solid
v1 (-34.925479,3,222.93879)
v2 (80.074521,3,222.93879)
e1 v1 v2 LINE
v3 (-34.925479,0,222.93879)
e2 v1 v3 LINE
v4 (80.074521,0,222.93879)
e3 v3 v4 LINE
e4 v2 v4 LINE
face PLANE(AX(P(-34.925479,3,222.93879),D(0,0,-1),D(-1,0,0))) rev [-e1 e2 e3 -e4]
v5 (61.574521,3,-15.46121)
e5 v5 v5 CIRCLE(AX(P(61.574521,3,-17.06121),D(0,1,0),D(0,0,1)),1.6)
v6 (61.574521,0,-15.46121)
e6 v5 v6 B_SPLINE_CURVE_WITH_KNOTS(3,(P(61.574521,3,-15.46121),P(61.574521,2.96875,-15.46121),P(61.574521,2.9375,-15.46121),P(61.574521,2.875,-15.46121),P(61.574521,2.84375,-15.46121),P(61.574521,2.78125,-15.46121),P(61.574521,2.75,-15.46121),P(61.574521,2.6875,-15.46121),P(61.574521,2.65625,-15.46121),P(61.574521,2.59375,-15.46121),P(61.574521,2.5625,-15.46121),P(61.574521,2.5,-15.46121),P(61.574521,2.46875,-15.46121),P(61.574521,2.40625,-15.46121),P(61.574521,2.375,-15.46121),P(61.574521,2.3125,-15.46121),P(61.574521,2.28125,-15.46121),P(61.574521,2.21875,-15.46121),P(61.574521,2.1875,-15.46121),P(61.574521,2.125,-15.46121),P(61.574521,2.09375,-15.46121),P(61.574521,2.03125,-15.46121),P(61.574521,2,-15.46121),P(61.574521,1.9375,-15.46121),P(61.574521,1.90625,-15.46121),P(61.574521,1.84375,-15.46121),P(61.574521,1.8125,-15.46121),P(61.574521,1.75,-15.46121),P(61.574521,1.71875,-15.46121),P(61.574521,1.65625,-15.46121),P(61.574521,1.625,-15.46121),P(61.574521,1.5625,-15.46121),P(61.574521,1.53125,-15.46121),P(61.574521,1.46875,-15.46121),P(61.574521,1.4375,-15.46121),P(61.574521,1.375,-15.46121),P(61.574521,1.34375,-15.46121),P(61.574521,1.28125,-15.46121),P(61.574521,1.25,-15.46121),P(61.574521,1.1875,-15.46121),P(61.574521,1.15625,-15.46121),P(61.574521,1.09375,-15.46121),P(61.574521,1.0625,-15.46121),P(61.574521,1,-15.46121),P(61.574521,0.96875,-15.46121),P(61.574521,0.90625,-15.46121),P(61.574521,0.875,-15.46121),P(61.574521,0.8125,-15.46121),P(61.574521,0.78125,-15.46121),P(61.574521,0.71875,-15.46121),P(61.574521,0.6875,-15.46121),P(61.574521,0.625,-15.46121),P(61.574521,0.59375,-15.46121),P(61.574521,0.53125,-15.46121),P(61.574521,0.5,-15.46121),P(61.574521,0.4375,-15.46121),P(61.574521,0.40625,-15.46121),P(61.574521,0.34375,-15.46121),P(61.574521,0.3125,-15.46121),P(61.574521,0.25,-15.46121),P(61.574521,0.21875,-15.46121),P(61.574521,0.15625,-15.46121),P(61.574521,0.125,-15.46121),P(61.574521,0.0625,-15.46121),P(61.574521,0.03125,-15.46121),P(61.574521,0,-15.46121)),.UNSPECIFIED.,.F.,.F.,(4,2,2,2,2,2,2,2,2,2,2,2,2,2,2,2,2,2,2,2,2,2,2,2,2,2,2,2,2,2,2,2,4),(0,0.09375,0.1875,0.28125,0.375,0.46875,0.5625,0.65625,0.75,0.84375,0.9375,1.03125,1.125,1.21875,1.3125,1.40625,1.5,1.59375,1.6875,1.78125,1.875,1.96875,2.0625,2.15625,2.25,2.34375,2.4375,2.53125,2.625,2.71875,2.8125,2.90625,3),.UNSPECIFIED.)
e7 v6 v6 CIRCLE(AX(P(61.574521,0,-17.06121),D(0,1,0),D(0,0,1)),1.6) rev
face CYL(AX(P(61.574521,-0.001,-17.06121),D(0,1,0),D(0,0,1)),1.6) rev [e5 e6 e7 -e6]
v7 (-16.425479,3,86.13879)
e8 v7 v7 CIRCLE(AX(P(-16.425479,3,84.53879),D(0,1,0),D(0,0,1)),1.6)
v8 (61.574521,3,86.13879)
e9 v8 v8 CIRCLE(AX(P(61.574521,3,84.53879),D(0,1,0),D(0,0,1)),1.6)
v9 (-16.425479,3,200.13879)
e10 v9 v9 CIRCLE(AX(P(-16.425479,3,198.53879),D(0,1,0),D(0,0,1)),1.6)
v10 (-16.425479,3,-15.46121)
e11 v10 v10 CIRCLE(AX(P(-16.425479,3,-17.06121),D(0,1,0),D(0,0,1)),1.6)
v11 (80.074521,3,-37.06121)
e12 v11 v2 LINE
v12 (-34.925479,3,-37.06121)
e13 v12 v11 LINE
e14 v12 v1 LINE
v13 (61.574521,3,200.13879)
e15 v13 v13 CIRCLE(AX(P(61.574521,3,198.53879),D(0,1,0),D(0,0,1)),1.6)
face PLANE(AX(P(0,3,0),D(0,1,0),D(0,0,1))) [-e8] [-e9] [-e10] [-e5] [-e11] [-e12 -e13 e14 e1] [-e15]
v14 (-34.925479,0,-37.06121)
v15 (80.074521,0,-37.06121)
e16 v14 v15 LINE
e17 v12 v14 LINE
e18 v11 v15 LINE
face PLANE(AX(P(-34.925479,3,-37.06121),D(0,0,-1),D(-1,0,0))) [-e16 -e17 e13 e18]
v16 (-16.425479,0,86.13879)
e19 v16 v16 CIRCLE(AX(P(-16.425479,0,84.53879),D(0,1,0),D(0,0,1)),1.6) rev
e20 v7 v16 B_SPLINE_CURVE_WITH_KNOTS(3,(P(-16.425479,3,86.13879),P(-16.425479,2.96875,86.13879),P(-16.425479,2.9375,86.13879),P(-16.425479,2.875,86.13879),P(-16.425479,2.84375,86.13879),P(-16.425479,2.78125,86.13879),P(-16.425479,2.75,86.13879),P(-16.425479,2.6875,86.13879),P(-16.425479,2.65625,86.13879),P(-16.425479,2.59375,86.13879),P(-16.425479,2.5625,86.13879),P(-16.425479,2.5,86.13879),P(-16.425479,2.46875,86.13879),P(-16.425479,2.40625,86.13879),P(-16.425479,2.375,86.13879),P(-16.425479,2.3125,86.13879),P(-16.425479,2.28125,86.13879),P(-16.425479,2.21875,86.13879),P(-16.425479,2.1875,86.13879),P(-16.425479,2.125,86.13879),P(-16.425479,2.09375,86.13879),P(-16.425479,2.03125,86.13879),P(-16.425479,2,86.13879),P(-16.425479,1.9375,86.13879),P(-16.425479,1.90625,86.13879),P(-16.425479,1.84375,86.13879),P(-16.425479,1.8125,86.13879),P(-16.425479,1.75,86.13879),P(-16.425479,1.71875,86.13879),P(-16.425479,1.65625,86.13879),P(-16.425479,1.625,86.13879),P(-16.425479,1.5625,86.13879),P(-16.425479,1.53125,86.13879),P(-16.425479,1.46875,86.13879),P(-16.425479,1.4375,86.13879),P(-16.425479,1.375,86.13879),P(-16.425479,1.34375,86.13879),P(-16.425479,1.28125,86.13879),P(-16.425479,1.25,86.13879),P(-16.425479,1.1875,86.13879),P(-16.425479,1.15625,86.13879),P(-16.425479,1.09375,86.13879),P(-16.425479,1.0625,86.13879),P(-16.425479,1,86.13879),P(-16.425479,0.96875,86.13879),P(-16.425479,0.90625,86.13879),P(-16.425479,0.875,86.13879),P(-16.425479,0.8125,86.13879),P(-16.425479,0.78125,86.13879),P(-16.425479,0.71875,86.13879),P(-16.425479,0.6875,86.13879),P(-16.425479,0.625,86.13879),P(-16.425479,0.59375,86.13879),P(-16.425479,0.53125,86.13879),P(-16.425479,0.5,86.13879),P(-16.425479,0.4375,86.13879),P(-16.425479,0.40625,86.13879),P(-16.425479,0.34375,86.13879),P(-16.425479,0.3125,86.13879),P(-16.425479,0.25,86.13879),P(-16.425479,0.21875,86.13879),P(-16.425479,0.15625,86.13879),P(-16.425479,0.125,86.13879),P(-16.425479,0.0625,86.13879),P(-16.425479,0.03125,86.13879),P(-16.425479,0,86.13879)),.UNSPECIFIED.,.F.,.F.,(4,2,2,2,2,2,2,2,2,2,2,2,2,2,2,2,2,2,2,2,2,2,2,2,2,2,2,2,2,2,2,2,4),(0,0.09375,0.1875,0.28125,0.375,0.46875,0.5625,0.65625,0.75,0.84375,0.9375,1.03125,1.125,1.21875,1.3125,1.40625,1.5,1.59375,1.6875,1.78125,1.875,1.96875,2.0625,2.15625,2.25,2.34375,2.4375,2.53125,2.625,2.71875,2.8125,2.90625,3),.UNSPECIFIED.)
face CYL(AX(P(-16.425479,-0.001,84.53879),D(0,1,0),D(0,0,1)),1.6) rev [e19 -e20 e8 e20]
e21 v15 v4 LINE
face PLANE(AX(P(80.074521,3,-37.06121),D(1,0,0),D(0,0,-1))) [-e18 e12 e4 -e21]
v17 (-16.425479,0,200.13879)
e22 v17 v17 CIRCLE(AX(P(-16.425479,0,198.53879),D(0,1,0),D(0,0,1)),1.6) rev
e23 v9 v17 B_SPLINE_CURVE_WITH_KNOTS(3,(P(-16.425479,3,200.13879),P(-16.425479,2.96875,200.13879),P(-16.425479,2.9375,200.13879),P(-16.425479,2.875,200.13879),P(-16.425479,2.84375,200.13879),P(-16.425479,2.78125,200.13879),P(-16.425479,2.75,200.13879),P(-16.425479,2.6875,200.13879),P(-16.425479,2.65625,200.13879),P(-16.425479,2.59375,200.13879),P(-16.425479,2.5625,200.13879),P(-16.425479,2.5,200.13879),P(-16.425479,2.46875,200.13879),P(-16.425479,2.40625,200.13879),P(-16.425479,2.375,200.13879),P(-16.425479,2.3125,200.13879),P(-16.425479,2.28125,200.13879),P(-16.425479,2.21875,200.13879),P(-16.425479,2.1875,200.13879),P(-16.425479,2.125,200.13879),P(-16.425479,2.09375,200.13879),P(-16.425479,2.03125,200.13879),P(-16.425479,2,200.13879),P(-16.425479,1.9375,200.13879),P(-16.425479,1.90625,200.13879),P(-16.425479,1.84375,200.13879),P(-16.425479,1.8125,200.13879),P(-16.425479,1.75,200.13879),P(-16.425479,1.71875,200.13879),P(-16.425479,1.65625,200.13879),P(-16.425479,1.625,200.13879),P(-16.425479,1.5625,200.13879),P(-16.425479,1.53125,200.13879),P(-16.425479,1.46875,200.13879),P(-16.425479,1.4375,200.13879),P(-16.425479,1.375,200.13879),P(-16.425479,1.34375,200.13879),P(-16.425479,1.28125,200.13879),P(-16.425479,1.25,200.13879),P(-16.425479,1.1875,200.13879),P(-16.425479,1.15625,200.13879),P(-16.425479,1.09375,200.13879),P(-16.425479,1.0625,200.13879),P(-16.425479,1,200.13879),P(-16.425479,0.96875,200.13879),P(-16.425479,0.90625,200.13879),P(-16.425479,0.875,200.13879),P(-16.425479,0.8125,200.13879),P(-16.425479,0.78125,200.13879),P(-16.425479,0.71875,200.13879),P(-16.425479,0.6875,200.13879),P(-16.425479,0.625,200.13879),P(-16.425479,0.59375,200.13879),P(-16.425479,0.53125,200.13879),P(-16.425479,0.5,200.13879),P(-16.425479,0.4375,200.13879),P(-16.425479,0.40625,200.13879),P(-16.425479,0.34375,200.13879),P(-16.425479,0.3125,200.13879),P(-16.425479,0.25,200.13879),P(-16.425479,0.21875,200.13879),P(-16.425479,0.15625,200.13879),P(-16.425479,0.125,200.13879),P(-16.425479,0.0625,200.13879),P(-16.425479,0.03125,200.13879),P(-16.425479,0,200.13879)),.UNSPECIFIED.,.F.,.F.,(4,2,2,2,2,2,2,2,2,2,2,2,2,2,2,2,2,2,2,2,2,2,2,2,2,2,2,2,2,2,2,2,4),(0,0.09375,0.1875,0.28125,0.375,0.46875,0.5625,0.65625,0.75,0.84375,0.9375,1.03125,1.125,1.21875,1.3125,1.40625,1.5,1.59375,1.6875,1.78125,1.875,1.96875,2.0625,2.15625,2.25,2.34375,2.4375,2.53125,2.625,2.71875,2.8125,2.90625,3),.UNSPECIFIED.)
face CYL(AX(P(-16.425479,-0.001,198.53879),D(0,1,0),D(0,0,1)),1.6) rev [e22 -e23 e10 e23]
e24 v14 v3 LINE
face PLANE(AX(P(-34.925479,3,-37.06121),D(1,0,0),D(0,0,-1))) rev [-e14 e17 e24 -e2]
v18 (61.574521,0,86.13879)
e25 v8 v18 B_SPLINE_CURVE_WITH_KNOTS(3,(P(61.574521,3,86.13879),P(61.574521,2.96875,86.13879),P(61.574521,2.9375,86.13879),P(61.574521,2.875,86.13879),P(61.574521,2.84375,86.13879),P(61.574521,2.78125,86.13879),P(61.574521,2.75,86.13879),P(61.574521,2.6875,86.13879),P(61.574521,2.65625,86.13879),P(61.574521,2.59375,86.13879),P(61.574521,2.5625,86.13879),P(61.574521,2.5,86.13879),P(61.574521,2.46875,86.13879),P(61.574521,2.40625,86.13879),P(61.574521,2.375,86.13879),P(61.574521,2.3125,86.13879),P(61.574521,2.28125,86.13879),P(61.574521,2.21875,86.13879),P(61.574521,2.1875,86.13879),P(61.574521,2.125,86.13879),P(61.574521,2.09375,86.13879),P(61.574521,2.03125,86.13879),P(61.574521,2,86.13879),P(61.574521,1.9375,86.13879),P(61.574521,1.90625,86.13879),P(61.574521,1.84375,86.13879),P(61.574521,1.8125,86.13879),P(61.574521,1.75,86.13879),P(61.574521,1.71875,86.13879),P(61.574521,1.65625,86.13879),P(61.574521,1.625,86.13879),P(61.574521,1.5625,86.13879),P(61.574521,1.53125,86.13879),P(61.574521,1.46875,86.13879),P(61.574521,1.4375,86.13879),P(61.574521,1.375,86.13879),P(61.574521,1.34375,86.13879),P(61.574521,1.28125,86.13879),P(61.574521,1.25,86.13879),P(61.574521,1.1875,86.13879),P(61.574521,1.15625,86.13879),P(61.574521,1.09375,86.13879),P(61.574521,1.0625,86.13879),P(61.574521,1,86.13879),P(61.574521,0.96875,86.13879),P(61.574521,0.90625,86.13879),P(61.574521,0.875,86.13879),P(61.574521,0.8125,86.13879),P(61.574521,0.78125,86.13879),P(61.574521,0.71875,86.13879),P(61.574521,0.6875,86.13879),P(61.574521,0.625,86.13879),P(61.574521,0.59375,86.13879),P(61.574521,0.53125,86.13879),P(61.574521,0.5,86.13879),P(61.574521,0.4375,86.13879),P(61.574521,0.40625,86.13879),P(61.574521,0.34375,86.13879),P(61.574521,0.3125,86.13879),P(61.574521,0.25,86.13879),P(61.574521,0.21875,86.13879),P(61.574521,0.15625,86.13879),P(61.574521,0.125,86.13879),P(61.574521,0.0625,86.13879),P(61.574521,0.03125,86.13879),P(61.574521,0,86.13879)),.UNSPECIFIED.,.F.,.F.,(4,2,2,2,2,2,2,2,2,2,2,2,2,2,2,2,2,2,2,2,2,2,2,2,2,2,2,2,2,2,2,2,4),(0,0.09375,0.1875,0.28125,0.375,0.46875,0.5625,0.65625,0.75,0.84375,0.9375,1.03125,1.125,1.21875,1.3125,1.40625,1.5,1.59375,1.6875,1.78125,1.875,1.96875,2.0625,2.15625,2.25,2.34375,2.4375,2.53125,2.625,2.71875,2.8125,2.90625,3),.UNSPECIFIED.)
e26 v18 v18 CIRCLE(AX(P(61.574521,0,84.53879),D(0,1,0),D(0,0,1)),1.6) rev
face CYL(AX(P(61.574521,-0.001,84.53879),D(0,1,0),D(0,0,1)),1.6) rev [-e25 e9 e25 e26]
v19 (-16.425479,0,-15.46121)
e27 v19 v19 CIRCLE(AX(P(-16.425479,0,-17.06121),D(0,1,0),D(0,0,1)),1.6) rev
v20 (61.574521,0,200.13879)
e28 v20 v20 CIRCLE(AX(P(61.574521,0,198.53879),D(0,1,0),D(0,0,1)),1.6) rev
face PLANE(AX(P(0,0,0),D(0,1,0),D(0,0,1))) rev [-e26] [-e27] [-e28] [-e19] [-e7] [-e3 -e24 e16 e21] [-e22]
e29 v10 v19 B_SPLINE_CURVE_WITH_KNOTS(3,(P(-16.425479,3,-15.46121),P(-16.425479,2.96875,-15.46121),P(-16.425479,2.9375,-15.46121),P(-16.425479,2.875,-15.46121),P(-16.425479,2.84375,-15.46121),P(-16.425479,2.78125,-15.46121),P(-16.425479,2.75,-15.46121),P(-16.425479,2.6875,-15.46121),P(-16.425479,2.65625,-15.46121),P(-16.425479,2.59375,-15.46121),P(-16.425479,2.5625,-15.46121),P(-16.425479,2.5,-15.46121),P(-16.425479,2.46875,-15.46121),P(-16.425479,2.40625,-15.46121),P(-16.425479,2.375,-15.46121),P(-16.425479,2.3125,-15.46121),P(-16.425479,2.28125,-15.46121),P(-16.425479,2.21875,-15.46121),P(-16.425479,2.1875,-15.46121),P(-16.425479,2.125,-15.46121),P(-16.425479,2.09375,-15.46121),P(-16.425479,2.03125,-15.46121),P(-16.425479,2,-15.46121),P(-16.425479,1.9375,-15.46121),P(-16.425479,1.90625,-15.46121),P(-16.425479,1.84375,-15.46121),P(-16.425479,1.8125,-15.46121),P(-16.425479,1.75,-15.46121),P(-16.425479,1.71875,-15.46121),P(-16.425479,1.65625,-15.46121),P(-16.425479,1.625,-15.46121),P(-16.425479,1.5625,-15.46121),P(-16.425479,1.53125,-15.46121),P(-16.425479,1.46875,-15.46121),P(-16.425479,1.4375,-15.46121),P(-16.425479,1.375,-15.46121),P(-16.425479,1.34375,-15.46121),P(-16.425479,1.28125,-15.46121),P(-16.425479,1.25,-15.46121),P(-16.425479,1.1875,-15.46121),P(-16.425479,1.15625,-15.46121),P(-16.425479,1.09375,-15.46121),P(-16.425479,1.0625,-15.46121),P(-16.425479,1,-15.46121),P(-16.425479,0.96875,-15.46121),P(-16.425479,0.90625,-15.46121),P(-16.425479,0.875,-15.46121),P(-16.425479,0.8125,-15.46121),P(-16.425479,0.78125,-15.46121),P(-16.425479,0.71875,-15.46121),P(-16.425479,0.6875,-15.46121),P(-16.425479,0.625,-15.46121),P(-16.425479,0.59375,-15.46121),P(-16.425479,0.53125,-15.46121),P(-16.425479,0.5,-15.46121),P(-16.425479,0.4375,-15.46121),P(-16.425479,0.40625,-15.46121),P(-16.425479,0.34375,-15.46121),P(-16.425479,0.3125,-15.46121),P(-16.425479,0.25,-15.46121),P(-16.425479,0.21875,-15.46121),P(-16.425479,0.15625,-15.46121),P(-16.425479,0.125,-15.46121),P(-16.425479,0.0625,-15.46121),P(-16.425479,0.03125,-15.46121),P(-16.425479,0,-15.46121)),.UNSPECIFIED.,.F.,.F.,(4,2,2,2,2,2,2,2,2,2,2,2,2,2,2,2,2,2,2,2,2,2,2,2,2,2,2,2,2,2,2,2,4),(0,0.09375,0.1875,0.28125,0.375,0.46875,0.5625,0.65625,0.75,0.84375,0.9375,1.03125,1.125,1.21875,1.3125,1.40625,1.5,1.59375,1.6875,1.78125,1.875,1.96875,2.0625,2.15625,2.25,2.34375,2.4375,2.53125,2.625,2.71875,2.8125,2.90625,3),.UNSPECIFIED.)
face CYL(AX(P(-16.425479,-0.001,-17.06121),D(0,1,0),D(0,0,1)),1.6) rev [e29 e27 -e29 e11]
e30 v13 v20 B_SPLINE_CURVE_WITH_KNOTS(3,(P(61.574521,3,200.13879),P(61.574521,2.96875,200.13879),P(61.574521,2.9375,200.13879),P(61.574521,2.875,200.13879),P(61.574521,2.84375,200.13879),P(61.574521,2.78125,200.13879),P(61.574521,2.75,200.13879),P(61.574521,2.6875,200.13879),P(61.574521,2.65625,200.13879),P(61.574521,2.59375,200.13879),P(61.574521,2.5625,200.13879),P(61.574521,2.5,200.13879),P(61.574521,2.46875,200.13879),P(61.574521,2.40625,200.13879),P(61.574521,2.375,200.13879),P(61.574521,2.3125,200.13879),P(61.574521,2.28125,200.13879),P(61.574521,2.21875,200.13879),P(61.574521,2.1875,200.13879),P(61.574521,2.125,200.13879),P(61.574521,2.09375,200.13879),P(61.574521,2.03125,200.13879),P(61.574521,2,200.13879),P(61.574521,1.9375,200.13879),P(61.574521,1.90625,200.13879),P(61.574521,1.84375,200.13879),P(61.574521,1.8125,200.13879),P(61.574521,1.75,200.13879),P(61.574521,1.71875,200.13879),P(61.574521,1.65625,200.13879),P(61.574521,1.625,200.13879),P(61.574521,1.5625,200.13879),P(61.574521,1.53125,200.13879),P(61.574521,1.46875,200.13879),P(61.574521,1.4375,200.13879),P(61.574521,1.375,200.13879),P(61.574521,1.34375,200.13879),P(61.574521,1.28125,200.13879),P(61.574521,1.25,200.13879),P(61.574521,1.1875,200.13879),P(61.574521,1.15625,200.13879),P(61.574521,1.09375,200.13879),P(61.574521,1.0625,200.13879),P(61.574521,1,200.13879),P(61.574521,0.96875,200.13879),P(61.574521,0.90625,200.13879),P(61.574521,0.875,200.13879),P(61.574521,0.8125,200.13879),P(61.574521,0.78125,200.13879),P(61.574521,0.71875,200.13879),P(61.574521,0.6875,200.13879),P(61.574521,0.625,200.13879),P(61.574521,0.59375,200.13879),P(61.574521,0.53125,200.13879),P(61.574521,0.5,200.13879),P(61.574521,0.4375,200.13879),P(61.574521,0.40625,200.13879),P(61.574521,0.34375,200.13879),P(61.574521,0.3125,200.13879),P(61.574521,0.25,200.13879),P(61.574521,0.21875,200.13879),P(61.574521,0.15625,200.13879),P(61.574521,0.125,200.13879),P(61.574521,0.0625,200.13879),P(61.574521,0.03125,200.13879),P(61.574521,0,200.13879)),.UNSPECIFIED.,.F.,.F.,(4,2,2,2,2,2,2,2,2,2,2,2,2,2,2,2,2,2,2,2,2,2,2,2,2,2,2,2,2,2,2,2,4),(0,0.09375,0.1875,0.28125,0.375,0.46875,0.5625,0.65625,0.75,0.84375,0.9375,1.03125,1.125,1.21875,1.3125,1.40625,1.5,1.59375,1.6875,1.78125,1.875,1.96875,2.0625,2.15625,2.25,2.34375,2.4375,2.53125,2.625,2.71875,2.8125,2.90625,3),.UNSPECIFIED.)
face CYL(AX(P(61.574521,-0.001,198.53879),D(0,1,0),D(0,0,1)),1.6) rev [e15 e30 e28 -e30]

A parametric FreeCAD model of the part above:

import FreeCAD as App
import Part
import Sketcher
Q = App.Units.Quantity

doc = App.newDocument("Part")
body = doc.addObject("PartDesign::Body", "Body")

sketch1 = body.newObject("Sketcher::SketchObject", "Sketch")
sketch1.AttachmentSupport = (doc.getObject("XZ_Plane"), [""])
sketch1.MapMode = "FlatFace"
sketch1.addGeometry([
    Part.LineSegment(App.Vector(-35, -37, 0), App.Vector(-35, 223, 0)),
    Part.LineSegment(App.Vector(-35, 223, 0), App.Vector(80, 223, 0)),
    Part.LineSegment(App.Vector(80, 223, 0), App.Vector(80, -37, 0)),
    Part.LineSegment(App.Vector(80, -37, 0), App.Vector(-35, -37, 0)),
], False)
sketch1.addConstraint([
    Sketcher.Constraint("Coincident", 0, 2, 1, 1),
    Sketcher.Constraint("Coincident", 1, 2, 2, 1),
    Sketcher.Constraint("Coincident", 2, 2, 3, 1),
    Sketcher.Constraint("Coincident", 3, 2, 0, 1),
    Sketcher.Constraint("Vertical", 0),
    Sketcher.Constraint("Horizontal", 1),
    Sketcher.Constraint("Vertical", 2),
    Sketcher.Constraint("Horizontal", 3),
    Sketcher.Constraint("DistanceX", 1, 1, 1, 2, Q("115 mm")),
    Sketcher.Constraint("DistanceY", 0, 1, 0, 2, Q("260 mm")),
    Sketcher.Constraint("DistanceX", 0, 2, -1, 1, Q("34.925479 mm")),
    Sketcher.Constraint("DistanceY", -1, 1, 0, 2, Q("222.93879 mm")),
])
pad1 = body.newObject("PartDesign::Pad", "Pad")
pad1.Profile = sketch1
pad1.Length = 3
pad1.Reversed = True

sketch2 = body.newObject("Sketcher::SketchObject", "Sketch001")
sketch2.AttachmentSupport = (doc.getObject("XZ_Plane"), [""])
sketch2.MapMode = "FlatFace"
sketch2.AttachmentOffset = App.Placement(App.Vector(0, 0, -3), App.Rotation())
sketch2.addGeometry(Part.Circle(App.Vector(-16.4, 198.5, 0), App.Vector(0, 0, 1), 1.6), False)
sketch2.addConstraint([
    Sketcher.Constraint("Diameter", 0, Q("3.2 mm")),
    Sketcher.Constraint("DistanceX", 0, 3, -1, 1, Q("16.425479 mm")),
    Sketcher.Constraint("DistanceY", -1, 1, 0, 3, Q("198.53879 mm")),
])
pocket1 = body.newObject("PartDesign::Pocket", "Pocket")
pocket1.Profile = sketch2
pocket1.Type = "UpToFirst"
pocket1.Reversed = True

sketch3 = body.newObject("Sketcher::SketchObject", "Sketch002")
sketch3.AttachmentSupport = (doc.getObject("XZ_Plane"), [""])
sketch3.MapMode = "FlatFace"
sketch3.AttachmentOffset = App.Placement(App.Vector(0, 0, -3), App.Rotation())
sketch3.addGeometry(Part.Circle(App.Vector(61.6, 198.5, 0), App.Vector(0, 0, 1), 1.6), False)
sketch3.addConstraint([
    Sketcher.Constraint("Diameter", 0, Q("3.2 mm")),
    Sketcher.Constraint("DistanceX", -1, 1, 0, 3, Q("61.574521 mm")),
    Sketcher.Constraint("DistanceY", -1, 1, 0, 3, Q("198.53879 mm")),
])
pocket2 = body.newObject("PartDesign::Pocket", "Pocket001")
pocket2.Profile = sketch3
pocket2.Type = "UpToFirst"
pocket2.Reversed = True

sketch4 = body.newObject("Sketcher::SketchObject", "Sketch003")
sketch4.AttachmentSupport = (doc.getObject("XZ_Plane"), [""])
sketch4.MapMode = "FlatFace"
sketch4.AttachmentOffset = App.Placement(App.Vector(0, 0, -3), App.Rotation())
sketch4.addGeometry(Part.Circle(App.Vector(-16.4, 84.5, 0), App.Vector(0, 0, 1), 1.6), False)
sketch4.addConstraint([
    Sketcher.Constraint("Diameter", 0, Q("3.2 mm")),
    Sketcher.Constraint("DistanceX", 0, 3, -1, 1, Q("16.425479 mm")),
    Sketcher.Constraint("DistanceY", -1, 1, 0, 3, Q("84.53879 mm")),
])
pocket3 = body.newObject("PartDesign::Pocket", "Pocket002")
pocket3.Profile = sketch4
pocket3.Type = "UpToFirst"
pocket3.Reversed = True

sketch5 = body.newObject("Sketcher::SketchObject", "Sketch004")
sketch5.AttachmentSupport = (doc.getObject("XZ_Plane"), [""])
sketch5.MapMode = "FlatFace"
sketch5.AttachmentOffset = App.Placement(App.Vector(0, 0, -3), App.Rotation())
sketch5.addGeometry(Part.Circle(App.Vector(61.6, 84.5, 0), App.Vector(0, 0, 1), 1.6), False)
sketch5.addConstraint([
    Sketcher.Constraint("Diameter", 0, Q("3.2 mm")),
    Sketcher.Constraint("DistanceX", -1, 1, 0, 3, Q("61.574521 mm")),
    Sketcher.Constraint("DistanceY", -1, 1, 0, 3, Q("84.53879 mm")),
])
pocket4 = body.newObject("PartDesign::Pocket", "Pocket003")
pocket4.Profile = sketch5
pocket4.Type = "UpToFirst"
pocket4.Reversed = True

sketch6 = body.newObject("Sketcher::SketchObject", "Sketch005")
sketch6.AttachmentSupport = (doc.getObject("XZ_Plane"), [""])
sketch6.MapMode = "FlatFace"
sketch6.AttachmentOffset = App.Placement(App.Vector(0, 0, -3), App.Rotation())
sketch6.addGeometry(Part.Circle(App.Vector(-16.4, -17.1, 0), App.Vector(0, 0, 1), 1.6), False)
sketch6.addConstraint([
    Sketcher.Constraint("Diameter", 0, Q("3.2 mm")),
    Sketcher.Constraint("DistanceX", 0, 3, -1, 1, Q("16.425479 mm")),
    Sketcher.Constraint("DistanceY", 0, 3, -1, 1, Q("17.06121 mm")),
])
pocket5 = body.newObject("PartDesign::Pocket", "Pocket004")
pocket5.Profile = sketch6
pocket5.Type = "UpToFirst"
pocket5.Reversed = True

sketch7 = body.newObject("Sketcher::SketchObject", "Sketch006")
sketch7.AttachmentSupport = (doc.getObject("XZ_Plane"), [""])
sketch7.MapMode = "FlatFace"
sketch7.AttachmentOffset = App.Placement(App.Vector(0, 0, -3), App.Rotation())
sketch7.addGeometry(Part.Circle(App.Vector(61.6, -17.1, 0), App.Vector(0, 0, 1), 1.6), False)
sketch7.addConstraint([
    Sketcher.Constraint("Diameter", 0, Q("3.2 mm")),
    Sketcher.Constraint("DistanceX", -1, 1, 0, 3, Q("61.574521 mm")),
    Sketcher.Constraint("DistanceY", 0, 3, -1, 1, Q("17.06121 mm")),
])
pocket6 = body.newObject("PartDesign::Pocket", "Pocket005")
pocket6.Profile = sketch7
pocket6.Type = "UpToFirst"
pocket6.Reversed = True

doc.recompute()
